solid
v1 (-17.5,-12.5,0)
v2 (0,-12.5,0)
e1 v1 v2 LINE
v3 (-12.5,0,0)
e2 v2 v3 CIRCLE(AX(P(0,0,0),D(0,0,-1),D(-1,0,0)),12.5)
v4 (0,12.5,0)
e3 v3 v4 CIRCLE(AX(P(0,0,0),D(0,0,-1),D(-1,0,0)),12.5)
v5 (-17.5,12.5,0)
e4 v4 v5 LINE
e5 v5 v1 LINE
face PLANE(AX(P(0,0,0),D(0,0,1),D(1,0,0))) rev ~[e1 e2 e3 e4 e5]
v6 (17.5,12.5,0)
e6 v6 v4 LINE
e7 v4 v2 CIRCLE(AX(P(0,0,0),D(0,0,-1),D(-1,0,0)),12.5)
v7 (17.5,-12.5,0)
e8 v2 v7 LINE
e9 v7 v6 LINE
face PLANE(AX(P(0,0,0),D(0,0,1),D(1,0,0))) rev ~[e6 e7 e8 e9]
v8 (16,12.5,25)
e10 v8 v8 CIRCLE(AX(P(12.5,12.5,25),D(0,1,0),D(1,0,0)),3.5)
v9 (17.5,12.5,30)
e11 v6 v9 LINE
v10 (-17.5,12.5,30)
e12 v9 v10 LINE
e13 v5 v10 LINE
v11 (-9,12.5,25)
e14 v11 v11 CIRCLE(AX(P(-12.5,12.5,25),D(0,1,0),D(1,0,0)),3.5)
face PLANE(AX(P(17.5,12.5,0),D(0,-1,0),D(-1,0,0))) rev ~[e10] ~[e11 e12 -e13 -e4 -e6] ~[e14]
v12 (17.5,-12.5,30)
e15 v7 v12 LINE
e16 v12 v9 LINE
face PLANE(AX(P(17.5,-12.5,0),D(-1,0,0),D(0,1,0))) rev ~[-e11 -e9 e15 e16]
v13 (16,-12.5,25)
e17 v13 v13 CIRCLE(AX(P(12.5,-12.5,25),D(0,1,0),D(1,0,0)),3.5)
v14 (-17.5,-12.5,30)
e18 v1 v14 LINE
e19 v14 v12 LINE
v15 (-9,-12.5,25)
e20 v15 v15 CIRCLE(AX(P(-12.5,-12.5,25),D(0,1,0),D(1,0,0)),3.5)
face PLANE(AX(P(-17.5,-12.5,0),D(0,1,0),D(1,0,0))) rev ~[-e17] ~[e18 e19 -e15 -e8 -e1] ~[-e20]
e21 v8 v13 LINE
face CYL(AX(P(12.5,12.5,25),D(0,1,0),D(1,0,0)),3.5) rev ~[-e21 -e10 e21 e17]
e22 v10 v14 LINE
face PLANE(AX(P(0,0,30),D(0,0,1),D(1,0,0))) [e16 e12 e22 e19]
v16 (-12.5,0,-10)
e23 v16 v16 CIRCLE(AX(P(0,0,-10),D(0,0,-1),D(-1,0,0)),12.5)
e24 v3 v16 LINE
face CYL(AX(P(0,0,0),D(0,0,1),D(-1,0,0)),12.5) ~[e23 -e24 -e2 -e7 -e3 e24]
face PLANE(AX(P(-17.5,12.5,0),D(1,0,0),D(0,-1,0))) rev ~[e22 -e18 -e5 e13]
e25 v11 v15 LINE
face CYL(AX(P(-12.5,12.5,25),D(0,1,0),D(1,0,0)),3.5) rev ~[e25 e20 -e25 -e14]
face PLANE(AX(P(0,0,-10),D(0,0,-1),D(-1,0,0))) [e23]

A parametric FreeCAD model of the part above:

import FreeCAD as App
import Part
import Sketcher
from FreeCAD import Vector

doc = App.newDocument("Part")
body = doc.addObject("PartDesign::Body", "Body")

sketch1 = body.newObject("Sketcher::SketchObject", "Sketch")
sketch1.AttachmentSupport = (doc.getObject("XY_Plane"), [""])
sketch1.MapMode = "FlatFace"
sketch1.addGeometry([
    Part.LineSegment(Vector(-17.5, 12.5, 0), Vector(-17.5, -12.5, 0)),
    Part.LineSegment(Vector(-17.5, -12.5, 0), Vector(17.5, -12.5, 0)),
    Part.LineSegment(Vector(17.5, -12.5, 0), Vector(17.5, 12.5, 0)),
    Part.LineSegment(Vector(17.5, 12.5, 0), Vector(-17.5, 12.5, 0)),
], False)
sketch1.addConstraint([
    Sketcher.Constraint("Coincident", 0, 2, 1, 1),
    Sketcher.Constraint("Coincident", 1, 2, 2, 1),
    Sketcher.Constraint("Coincident", 2, 2, 3, 1),
    Sketcher.Constraint("Coincident", 3, 2, 0, 1),
    Sketcher.Constraint("Vertical", 0),
    Sketcher.Constraint("Horizontal", 1),
    Sketcher.Constraint("Vertical", 2),
    Sketcher.Constraint("Horizontal", 3),
    Sketcher.Constraint("Symmetric", 0, 2, 2, 2, -1, 1),
    Sketcher.Constraint("DistanceX", 1, 1, 1, 2, 35.0),
    Sketcher.Constraint("DistanceY", 0, 2, 0, 1, 25.0),
])
pad1 = body.newObject("PartDesign::Pad", "Pad")
pad1.Profile = sketch1
pad1.Length = 30

sketch2 = body.newObject("Sketcher::SketchObject", "Sketch001")
sketch2.AttachmentSupport = (doc.getObject("XY_Plane"), [""])
sketch2.MapMode = "FlatFace"
sketch2.addGeometry(Part.Circle(Vector(0, 0, 0), Vector(0, 0, 1), 12.5), False)
sketch2.addConstraint([
    Sketcher.Constraint("Coincident", 0, 3, -1, 1),
    Sketcher.Constraint("Diameter", 0, 25.0),
])
pad2 = body.newObject("PartDesign::Pad", "Pad001")
pad2.Profile = sketch2
pad2.Length = 10
pad2.Reversed = True

sketch3 = body.newObject("Sketcher::SketchObject", "Sketch002")
sketch3.AttachmentSupport = (doc.getObject("XZ_Plane"), [""])
sketch3.MapMode = "FlatFace"
sketch3.AttachmentOffset = App.Placement(Vector(0, 0, -12.5), App.Rotation())
sketch3.addGeometry([
    Part.Circle(Vector(12.5, 25, 0), Vector(0, 0, 1), 3.5),
    Part.Circle(Vector(-12.5, 25, 0), Vector(0, 0, 1), 3.5),
], False)
sketch3.addConstraint([
    Sketcher.Constraint("Equal", 0, 1),
    Sketcher.Constraint("Symmetric", 0, 3, 1, 3, -2),
    Sketcher.Constraint("Diameter", 0, 7.0),
    Sketcher.Constraint("DistanceY", -1, 1, 0, 3, 25.0),
    Sketcher.Constraint("DistanceX", 1, 3, 0, 3, 25.0),
])
pocket1 = body.newObject("PartDesign::Pocket", "Pocket")
pocket1.Profile = sketch3
pocket1.Type = "ThroughAll"
pocket1.Reversed = True

doc.recompute()
